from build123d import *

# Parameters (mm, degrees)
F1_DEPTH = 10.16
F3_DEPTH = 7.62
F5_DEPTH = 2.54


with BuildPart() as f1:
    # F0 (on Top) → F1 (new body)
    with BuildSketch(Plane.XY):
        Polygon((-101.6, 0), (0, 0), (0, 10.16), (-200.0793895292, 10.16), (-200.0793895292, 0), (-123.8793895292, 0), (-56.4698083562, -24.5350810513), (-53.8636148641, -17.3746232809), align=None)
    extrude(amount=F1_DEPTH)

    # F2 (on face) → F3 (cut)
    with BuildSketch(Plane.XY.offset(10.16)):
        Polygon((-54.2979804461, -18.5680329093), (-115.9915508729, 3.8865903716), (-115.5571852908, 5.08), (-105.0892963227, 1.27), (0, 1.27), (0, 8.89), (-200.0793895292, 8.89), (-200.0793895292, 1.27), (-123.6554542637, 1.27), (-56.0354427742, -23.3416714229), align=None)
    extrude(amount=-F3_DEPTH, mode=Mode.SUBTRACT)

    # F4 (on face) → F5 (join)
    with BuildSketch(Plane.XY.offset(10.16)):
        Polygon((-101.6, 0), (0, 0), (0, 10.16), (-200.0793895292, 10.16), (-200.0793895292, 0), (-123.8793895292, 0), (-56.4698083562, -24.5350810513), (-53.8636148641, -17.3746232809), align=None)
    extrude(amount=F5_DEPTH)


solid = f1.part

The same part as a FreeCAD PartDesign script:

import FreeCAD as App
import Part
import Sketcher

V = App.Vector
Q = App.Units.Quantity

doc = App.newDocument("Part")
body = doc.addObject("PartDesign::Body", "Body")

sketch1 = body.newObject("Sketcher::SketchObject", "Sketch")
sketch1.AttachmentSupport = (doc.getObject("XY_Plane"), [""])
sketch1.MapMode = "FlatFace"
sketch1.addGeometry([
    Part.LineSegment(V(-102, 0, 0), V(0, 0, 0)),
    Part.LineSegment(V(0, 0, 0), V(0, 10, 0)),
    Part.LineSegment(V(0, 10, 0), V(-200, 10, 0)),
    Part.LineSegment(V(-200, 10, 0), V(-200, 0, 0)),
    Part.LineSegment(V(-200, 0, 0), V(-124, 0, 0)),
    Part.LineSegment(V(-124, 0, 0), V(-56, -25, 0)),
    Part.LineSegment(V(-56, -25, 0), V(-54, -17, 0)),
    Part.LineSegment(V(-54, -17, 0), V(-102, 0, 0)),
], False)
sketch1.addConstraint([
    Sketcher.Constraint("Coincident", 0, 2, 1, 1),
    Sketcher.Constraint("Coincident", 1, 2, 2, 1),
    Sketcher.Constraint("Coincident", 2, 2, 3, 1),
    Sketcher.Constraint("Coincident", 3, 2, 4, 1),
    Sketcher.Constraint("Coincident", 4, 2, 5, 1),
    Sketcher.Constraint("Coincident", 5, 2, 6, 1),
    Sketcher.Constraint("Coincident", 6, 2, 7, 1),
    Sketcher.Constraint("Coincident", 7, 2, 0, 1),
    Sketcher.Constraint("Horizontal", 0),
    Sketcher.Constraint("Vertical", 1),
    Sketcher.Constraint("Horizontal", 2),
    Sketcher.Constraint("Vertical", 3),
    Sketcher.Constraint("Horizontal", 4),
    Sketcher.Constraint("Coincident", 0, 2, -1, 1),
    Sketcher.Constraint("PointOnObject", 3, 2, -1),
    Sketcher.Constraint("Perpendicular", 5, 6),
    Sketcher.Constraint("Perpendicular", 6, 7),
    Sketcher.Constraint("DistanceX", 0, 1, 0, 2, Q("4 in")),
    Sketcher.Constraint("DistanceX", 4, 1, 4, 2, Q("3 in")),
    Sketcher.Constraint("Distance", 7, Q("2 in")),
    Sketcher.Constraint("DistanceY", 1, 1, 1, 2, Q("0.4 in")),
    Sketcher.Constraint("Angle", 5, Q("-20 deg")),
    Sketcher.Constraint("Distance", 6, Q("0.3 in")),
])
pad1 = body.newObject("PartDesign::Pad", "Pad")
pad1.Profile = sketch1
pad1.Length = Q("0.4 in")

sketch2 = body.newObject("Sketcher::SketchObject", "Sketch001")
sketch2.AttachmentSupport = (doc.getObject("XY_Plane"), [""])
sketch2.MapMode = "FlatFace"
sketch2.AttachmentOffset = App.Placement(V(0, 0, 0.4 * 25.4), App.Rotation())
sketch2.addGeometry([
    Part.LineSegment(V(-54.3, -18.6, 0), V(-116, 3.9, 0)),
    Part.LineSegment(V(-116, 3.9, 0), V(-115.6, 5.1, 0)),
    Part.LineSegment(V(-115.6, 5.1, 0), V(-105.1, 1.3, 0)),
    Part.LineSegment(V(-105.1, 1.3, 0), V(0, 1.3, 0)),
    Part.LineSegment(V(0, 1.3, 0), V(0, 8.9, 0)),
    Part.LineSegment(V(0, 8.9, 0), V(-200.1, 8.9, 0)),
    Part.LineSegment(V(-200.1, 8.9, 0), V(-200.1, 1.3, 0)),
    Part.LineSegment(V(-200.1, 1.3, 0), V(-123.7, 1.3, 0)),
    Part.LineSegment(V(-123.7, 1.3, 0), V(-56, -23.3, 0)),
    Part.LineSegment(V(-56, -23.3, 0), V(-54.3, -18.6, 0)),
], False)
sketch2.addConstraint([
    Sketcher.Constraint("Coincident", 0, 2, 1, 1),
    Sketcher.Constraint("Coincident", 1, 2, 2, 1),
    Sketcher.Constraint("Coincident", 2, 2, 3, 1),
    Sketcher.Constraint("Coincident", 3, 2, 4, 1),
    Sketcher.Constraint("Coincident", 4, 2, 5, 1),
    Sketcher.Constraint("Coincident", 5, 2, 6, 1),
    Sketcher.Constraint("Coincident", 6, 2, 7, 1),
    Sketcher.Constraint("Coincident", 7, 2, 8, 1),
    Sketcher.Constraint("Coincident", 8, 2, 9, 1),
    Sketcher.Constraint("Coincident", 9, 2, 0, 1),
    Sketcher.Constraint("Horizontal", 3),
    Sketcher.Constraint("Vertical", 4),
    Sketcher.Constraint("Horizontal", 5),
    Sketcher.Constraint("Vertical", 6),
    Sketcher.Constraint("Horizontal", 7),
    Sketcher.Constraint("PointOnObject", 3, 2, -2),
    Sketcher.Constraint("Perpendicular", 0, 1),
    Sketcher.Constraint("Perpendicular", 1, 2),
    Sketcher.Constraint("Parallel", 2, 8),
    Sketcher.Constraint("Perpendicular", 8, 9),
    Sketcher.Constraint("Horizontal", 3, 2, 6, 2),
    Sketcher.Constraint("DistanceY", 4, 1, 4, 2, Q("0.3 in")),
    Sketcher.Constraint("Angle", 0, Q("160 deg")),
    Sketcher.Constraint("Distance", 9, Q("0.2 in")),
    Sketcher.Constraint("DistanceY", -1, 1, 1, 2, Q("0.2 in")),
    Sketcher.Constraint("Distance", 1, Q("0.05 in")),
    Sketcher.Constraint("DistanceY", -1, 1, 2, 2, Q("0.05 in")),
    Sketcher.Constraint("DistanceX", 5, 2, 5, 1, 200.07939),
    Sketcher.Constraint("DistanceX", 3, 1, 3, 2, 105.089296),
    Sketcher.Constraint("DistanceY", 8, 2, -1, 1, 23.341671),
])
pocket1 = body.newObject("PartDesign::Pocket", "Pocket")
pocket1.Profile = sketch2
pocket1.Length = Q("0.3 in")

sketch3 = body.newObject("Sketcher::SketchObject", "Sketch002")
sketch3.AttachmentSupport = (doc.getObject("XY_Plane"), [""])
sketch3.MapMode = "FlatFace"
sketch3.AttachmentOffset = App.Placement(V(0, 0, 0.4 * 25.4), App.Rotation())
sketch3.addGeometry([
    Part.LineSegment(V(-102, 0, 0), V(0, 0, 0)),
    Part.LineSegment(V(0, 0, 0), V(0, 10, 0)),
    Part.LineSegment(V(0, 10, 0), V(-200, 10, 0)),
    Part.LineSegment(V(-200, 10, 0), V(-200, 0, 0)),
    Part.LineSegment(V(-200, 0, 0), V(-124, 0, 0)),
    Part.LineSegment(V(-124, 0, 0), V(-56, -25, 0)),
    Part.LineSegment(V(-56, -25, 0), V(-54, -17, 0)),
    Part.LineSegment(V(-54, -17, 0), V(-102, 0, 0)),
], False)
sketch3.addConstraint([
    Sketcher.Constraint("Coincident", 0, 2, 1, 1),
    Sketcher.Constraint("Coincident", 1, 2, 2, 1),
    Sketcher.Constraint("Coincident", 2, 2, 3, 1),
    Sketcher.Constraint("Coincident", 3, 2, 4, 1),
    Sketcher.Constraint("Coincident", 4, 2, 5, 1),
    Sketcher.Constraint("Coincident", 5, 2, 6, 1),
    Sketcher.Constraint("Coincident", 6, 2, 7, 1),
    Sketcher.Constraint("Coincident", 7, 2, 0, 1),
    Sketcher.Constraint("Horizontal", 0),
    Sketcher.Constraint("Vertical", 1),
    Sketcher.Constraint("Horizontal", 2),
    Sketcher.Constraint("Vertical", 3),
    Sketcher.Constraint("Horizontal", 4),
    Sketcher.Constraint("Coincident", 0, 2, -1, 1),
    Sketcher.Constraint("PointOnObject", 3, 2, -1),
    Sketcher.Constraint("Perpendicular", 5, 6),
    Sketcher.Constraint("Perpendicular", 6, 7),
    Sketcher.Constraint("DistanceX", 0, 1, 0, 2, Q("4 in")),
    Sketcher.Constraint("DistanceX", 4, 1, 4, 2, Q("3 in")),
    Sketcher.Constraint("Distance", 7, Q("2 in")),
    Sketcher.Constraint("DistanceY", 1, 1, 1, 2, Q("0.4 in")),
    Sketcher.Constraint("Angle", 5, Q("-20 deg")),
    Sketcher.Constraint("Distance", 6, Q("0.3 in")),
])
pad2 = body.newObject("PartDesign::Pad", "Pad001")
pad2.Profile = sketch3
pad2.Length = Q("0.1 in")

doc.recompute()
